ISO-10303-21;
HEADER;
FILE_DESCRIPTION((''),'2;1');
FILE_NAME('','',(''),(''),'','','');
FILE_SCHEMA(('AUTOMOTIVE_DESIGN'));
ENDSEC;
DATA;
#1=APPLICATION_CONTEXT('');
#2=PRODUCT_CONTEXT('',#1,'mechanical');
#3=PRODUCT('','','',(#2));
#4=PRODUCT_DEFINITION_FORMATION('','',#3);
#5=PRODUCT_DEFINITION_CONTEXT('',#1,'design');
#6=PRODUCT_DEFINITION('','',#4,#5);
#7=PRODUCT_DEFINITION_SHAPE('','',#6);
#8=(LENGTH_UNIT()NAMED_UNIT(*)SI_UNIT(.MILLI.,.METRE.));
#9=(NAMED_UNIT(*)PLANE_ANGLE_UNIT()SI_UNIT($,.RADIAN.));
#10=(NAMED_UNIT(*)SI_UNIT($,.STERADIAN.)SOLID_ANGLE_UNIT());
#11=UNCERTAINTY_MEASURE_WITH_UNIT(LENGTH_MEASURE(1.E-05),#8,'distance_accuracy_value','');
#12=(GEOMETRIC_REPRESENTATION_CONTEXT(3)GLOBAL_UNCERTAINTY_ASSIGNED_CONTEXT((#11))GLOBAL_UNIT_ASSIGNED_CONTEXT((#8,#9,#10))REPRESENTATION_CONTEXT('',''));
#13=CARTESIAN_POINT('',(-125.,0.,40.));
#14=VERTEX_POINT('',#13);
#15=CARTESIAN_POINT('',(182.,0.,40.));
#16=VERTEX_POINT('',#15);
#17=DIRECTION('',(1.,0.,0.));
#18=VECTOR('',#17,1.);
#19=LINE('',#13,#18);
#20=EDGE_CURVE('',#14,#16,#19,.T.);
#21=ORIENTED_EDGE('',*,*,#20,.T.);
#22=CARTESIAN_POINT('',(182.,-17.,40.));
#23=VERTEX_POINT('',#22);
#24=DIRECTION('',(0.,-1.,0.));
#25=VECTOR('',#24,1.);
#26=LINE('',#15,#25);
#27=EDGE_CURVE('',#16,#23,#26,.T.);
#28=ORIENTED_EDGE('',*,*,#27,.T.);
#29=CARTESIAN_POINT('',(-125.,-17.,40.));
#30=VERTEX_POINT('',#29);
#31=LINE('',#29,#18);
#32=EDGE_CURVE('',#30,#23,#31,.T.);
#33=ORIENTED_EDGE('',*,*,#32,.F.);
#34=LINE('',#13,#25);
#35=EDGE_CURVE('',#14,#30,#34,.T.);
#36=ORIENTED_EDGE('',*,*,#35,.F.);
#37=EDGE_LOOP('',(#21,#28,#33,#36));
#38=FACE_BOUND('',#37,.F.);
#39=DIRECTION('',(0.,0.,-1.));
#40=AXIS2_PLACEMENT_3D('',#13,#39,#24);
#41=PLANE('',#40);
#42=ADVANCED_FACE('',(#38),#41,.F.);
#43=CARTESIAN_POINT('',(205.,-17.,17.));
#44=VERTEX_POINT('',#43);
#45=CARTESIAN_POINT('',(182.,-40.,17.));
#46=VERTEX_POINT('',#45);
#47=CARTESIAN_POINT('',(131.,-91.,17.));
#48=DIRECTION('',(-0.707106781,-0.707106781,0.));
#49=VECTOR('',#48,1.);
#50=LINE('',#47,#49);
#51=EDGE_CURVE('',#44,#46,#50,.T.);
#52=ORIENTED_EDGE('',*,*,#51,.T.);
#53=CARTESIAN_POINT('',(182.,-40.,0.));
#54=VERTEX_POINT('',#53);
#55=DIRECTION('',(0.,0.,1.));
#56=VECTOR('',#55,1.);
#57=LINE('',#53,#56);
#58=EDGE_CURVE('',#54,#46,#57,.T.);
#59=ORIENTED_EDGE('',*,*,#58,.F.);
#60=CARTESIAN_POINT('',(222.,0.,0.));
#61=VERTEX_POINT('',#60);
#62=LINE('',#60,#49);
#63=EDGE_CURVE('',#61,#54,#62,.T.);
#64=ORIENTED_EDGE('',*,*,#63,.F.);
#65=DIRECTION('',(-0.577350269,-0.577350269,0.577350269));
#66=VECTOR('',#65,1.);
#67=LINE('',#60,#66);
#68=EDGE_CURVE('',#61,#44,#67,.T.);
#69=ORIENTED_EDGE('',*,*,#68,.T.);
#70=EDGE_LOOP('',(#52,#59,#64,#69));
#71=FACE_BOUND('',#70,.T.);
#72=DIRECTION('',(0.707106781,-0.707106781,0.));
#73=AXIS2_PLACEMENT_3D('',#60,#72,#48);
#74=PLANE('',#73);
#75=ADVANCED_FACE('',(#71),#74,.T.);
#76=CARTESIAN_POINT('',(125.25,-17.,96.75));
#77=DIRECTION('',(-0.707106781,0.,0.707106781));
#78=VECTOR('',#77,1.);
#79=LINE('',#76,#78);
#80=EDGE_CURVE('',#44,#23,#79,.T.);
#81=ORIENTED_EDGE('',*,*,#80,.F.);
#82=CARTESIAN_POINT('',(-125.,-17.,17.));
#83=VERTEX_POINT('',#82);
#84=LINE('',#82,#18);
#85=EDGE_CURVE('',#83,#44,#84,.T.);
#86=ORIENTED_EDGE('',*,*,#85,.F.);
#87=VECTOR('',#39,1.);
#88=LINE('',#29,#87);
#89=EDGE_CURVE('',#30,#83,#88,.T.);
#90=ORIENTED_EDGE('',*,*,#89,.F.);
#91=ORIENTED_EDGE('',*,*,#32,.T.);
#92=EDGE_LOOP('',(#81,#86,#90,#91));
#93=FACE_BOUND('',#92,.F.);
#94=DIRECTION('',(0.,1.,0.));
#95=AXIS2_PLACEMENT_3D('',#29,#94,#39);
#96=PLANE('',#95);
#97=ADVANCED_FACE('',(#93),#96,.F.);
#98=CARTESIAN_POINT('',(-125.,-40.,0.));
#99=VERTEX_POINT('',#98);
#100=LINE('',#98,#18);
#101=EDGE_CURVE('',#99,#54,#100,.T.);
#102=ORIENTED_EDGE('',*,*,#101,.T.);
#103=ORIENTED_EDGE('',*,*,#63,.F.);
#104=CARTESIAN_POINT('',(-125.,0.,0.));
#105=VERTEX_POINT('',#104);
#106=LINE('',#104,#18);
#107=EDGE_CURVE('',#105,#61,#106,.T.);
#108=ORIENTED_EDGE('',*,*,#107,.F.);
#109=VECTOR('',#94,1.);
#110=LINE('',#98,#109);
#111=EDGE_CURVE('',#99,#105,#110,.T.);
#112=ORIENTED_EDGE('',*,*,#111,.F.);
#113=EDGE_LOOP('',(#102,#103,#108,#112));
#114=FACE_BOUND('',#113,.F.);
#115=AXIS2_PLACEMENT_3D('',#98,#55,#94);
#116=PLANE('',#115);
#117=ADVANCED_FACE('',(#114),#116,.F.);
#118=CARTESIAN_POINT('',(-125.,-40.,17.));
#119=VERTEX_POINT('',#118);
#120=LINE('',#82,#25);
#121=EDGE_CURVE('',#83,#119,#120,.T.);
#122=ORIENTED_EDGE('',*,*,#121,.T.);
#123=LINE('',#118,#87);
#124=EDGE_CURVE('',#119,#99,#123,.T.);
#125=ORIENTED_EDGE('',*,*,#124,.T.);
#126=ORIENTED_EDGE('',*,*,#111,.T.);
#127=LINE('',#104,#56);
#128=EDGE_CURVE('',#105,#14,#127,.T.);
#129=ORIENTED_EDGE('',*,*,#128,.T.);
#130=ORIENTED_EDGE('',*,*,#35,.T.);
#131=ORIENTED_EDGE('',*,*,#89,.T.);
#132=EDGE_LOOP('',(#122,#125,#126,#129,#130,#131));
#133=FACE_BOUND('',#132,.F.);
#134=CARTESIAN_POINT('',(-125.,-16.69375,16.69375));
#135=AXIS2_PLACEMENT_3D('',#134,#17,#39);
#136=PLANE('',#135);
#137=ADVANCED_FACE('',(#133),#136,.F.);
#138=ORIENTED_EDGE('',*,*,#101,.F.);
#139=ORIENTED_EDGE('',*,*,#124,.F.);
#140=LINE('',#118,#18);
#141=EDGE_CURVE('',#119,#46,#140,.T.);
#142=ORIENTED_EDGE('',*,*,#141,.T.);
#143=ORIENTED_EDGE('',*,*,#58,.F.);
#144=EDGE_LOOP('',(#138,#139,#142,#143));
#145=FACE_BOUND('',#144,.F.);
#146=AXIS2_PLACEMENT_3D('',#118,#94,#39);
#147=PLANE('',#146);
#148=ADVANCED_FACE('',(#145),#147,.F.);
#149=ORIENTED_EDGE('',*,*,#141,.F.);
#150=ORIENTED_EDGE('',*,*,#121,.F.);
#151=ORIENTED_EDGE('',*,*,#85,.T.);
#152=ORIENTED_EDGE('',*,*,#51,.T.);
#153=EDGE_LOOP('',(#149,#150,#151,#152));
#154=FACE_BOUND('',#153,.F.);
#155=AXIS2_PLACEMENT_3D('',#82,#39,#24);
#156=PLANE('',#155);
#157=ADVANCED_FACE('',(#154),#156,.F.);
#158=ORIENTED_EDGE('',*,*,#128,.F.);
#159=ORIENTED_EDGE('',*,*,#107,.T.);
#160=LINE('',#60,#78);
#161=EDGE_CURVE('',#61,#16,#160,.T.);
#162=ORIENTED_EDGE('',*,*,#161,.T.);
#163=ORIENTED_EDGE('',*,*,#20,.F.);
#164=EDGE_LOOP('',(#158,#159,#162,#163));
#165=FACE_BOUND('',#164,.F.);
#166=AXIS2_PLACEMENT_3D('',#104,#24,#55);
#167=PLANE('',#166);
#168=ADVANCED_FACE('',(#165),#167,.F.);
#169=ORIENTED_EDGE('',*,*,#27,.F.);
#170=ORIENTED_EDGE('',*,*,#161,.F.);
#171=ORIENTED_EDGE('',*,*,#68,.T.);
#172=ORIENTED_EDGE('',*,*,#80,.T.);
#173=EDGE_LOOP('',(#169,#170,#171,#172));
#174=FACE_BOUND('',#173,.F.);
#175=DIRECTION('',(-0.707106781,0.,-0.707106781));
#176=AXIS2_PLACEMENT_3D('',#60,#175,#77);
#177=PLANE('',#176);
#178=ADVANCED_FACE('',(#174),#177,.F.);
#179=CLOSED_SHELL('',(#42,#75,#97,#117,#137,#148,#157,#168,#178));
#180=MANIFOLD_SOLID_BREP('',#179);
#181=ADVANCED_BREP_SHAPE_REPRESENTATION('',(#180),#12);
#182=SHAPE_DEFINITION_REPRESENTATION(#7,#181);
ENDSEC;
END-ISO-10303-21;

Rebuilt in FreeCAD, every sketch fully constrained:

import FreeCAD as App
import Part
import Sketcher


def add_polygon(sketch, points):
    """Adds a closed chain of lines whose ends are joined by coincident constraints."""
    first, n = sketch.GeometryCount, len(points)
    for a, b in zip(points, points[1:] + points[:1]):
        sketch.addGeometry(Part.LineSegment(App.Vector(*a, 0), App.Vector(*b, 0)), False)
    for i in range(n):
        sketch.addConstraint(Sketcher.Constraint("Coincident", first + i, 2, first + (i + 1) % n, 1))

doc = App.newDocument("Part")
body = doc.addObject("PartDesign::Body", "Body")

sketch1 = doc.addObject("Sketcher::SketchObject", "Sketch")
body.addObject(sketch1)
sketch1.AttachmentSupport = (doc.YZ_Plane, [""])
sketch1.MapMode = "FlatFace"
sketch1.AttachmentOffset = App.Placement(App.Vector(0, 0, -125), App.Rotation())
add_polygon(sketch1, [(0, 0), (0, 40), (-17, 40), (-17, 17), (-40, 17), (-40, 0)])
sketch1.addConstraint([
    Sketcher.Constraint("Vertical", 0),
    Sketcher.Constraint("Horizontal", 1),
    Sketcher.Constraint("Vertical", 2),
    Sketcher.Constraint("Horizontal", 3),
    Sketcher.Constraint("Vertical", 4),
    Sketcher.Constraint("Horizontal", 5),
    Sketcher.Constraint("Coincident", 5, 2, -1, 1),
    Sketcher.Constraint("Equal", 5, 0),
    Sketcher.Constraint("Equal", 3, 2),
    Sketcher.Constraint("DistanceX", 1, 2, 1, 1, 17.0),
    Sketcher.Constraint("DistanceX", 3, 2, 3, 1, 23.0),
])
pad1 = doc.addObject("PartDesign::Pad", "Pad")
body.addObject(pad1)
pad1.Profile = sketch1
pad1.Length = 347

sketch2 = doc.addObject("Sketcher::SketchObject", "Sketch001")
body.addObject(sketch2)
sketch2.AttachmentSupport = (doc.XZ_Plane, [""])
sketch2.MapMode = "FlatFace"
add_polygon(sketch2, [(222, 0), (182, 40), (222, 40)])
sketch2.addConstraint([
    Sketcher.Constraint("Horizontal", 1),
    Sketcher.Constraint("Vertical", 2),
    Sketcher.Constraint("PointOnObject", 2, 2, -1),
    Sketcher.Constraint("Equal", 1, 2),
    Sketcher.Constraint("DistanceX", 1, 1, 1, 2, 40.0),
    Sketcher.Constraint("DistanceX", -1, 1, 0, 2, 182.0),
])
pocket1 = doc.addObject("PartDesign::Pocket", "Pocket")
body.addObject(pocket1)
pocket1.Profile = sketch2
pocket1.Type = "ThroughAll"
pocket1.Reversed = True

sketch3 = doc.addObject("Sketcher::SketchObject", "Sketch002")
body.addObject(sketch3)
sketch3.AttachmentSupport = (doc.XY_Plane, [""])
sketch3.MapMode = "FlatFace"
add_polygon(sketch3, [(182, -40), (222, 0), (222, -40)])
sketch3.addConstraint([
    Sketcher.Constraint("Vertical", 1),
    Sketcher.Constraint("Horizontal", 2),
    Sketcher.Constraint("PointOnObject", 0, 2, -1),
    Sketcher.Constraint("Equal", 2, 1),
    Sketcher.Constraint("DistanceX", 2, 2, 2, 1, 40.0),
    Sketcher.Constraint("DistanceX", -1, 1, 0, 2, 222.0),
])
pocket2 = doc.addObject("PartDesign::Pocket", "Pocket001")
body.addObject(pocket2)
pocket2.Profile = sketch3
pocket2.Type = "ThroughAll"
pocket2.Reversed = True

doc.recompute()
